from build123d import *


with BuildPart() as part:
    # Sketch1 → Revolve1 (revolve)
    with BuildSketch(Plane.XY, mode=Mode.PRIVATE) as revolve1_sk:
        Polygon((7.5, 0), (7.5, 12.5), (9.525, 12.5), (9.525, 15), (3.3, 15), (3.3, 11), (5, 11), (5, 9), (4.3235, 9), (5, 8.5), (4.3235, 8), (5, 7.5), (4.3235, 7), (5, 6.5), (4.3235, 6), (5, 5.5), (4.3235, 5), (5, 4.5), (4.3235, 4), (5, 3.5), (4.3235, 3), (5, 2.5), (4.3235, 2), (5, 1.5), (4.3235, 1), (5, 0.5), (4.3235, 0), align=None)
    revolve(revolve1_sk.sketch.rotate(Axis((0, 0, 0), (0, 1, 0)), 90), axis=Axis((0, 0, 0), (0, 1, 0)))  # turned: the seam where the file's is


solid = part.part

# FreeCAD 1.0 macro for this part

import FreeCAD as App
import Part
import Sketcher

V = App.Vector


def add_polygon(sketch, points):
    """Adds a closed chain of lines whose ends are joined by coincident constraints."""
    first, n = sketch.GeometryCount, len(points)
    for a, b in zip(points, points[1:] + points[:1]):
        sketch.addGeometry(Part.LineSegment(App.Vector(*a, 0), App.Vector(*b, 0)), False)
    for i in range(n):
        sketch.addConstraint(Sketcher.Constraint("Coincident", first + i, 2, first + (i + 1) % n, 1))

doc = App.newDocument("Part")
params = doc.addObject("Spreadsheet::Sheet", "Params")
for row, (alias, value) in enumerate([
    ("sketch1_height", "4 mm"),
    ("sketch1_height2", "2 mm"),
    ("sketch1_width", "1.7 mm"),
    ("sketch1_height3", "12.5 mm"),
    ("sketch1_height4", "2.5 mm"),
    ("revolution_angle", "360 deg"),
], start=1):
    params.set(f"A{row}", alias)
    params.set(f"B{row}", "=" + value)
    params.setAlias(f"B{row}", alias)

body = doc.addObject("PartDesign::Body", "Body")

# Sketch on XY plane
sketch1 = body.newObject("Sketcher::SketchObject", "Sketch")
sketch1.AttachmentSupport = (doc.getObject("XY_Plane"), [""])
sketch1.MapMode = "FlatFace"
add_polygon(sketch1, [(7.5, 0), (7.5, 12.5), (9.5, 12.5), (9.5, 15), (3.3, 15), (3.3, 11), (5, 11), (5, 9), (4.3, 9), (5, 8.5), (4.3, 8), (5, 7.5), (4.3, 7), (5, 6.5), (4.3, 6), (5, 5.5), (4.3, 5), (5, 4.5), (4.3, 4), (5, 3.5), (4.3, 3), (5, 2.5), (4.3, 2), (5, 1.5), (4.3, 1), (5, 0.5), (4.3, 0)])  # lines 0-26
sketch1.addConstraint([
    Sketcher.Constraint("Vertical", 0),
    Sketcher.Constraint("Horizontal", 1),
    Sketcher.Constraint("Vertical", 2),
    Sketcher.Constraint("Horizontal", 3),
    Sketcher.Constraint("Vertical", 4),
    Sketcher.Constraint("Horizontal", 5),
    Sketcher.Constraint("Vertical", 6),
    Sketcher.Constraint("Horizontal", 7),
    Sketcher.Constraint("Horizontal", 26),
    Sketcher.Constraint("PointOnObject", 25, 2, -1),
    Sketcher.Constraint("Parallel", 8, 10),
    Sketcher.Constraint("Parallel", 9, 11),
    Sketcher.Constraint("Parallel", 10, 12),
    Sketcher.Constraint("Parallel", 11, 13),
    Sketcher.Constraint("Parallel", 12, 14),
    Sketcher.Constraint("Parallel", 13, 15),
    Sketcher.Constraint("Parallel", 14, 16),
    Sketcher.Constraint("Parallel", 15, 17),
    Sketcher.Constraint("Parallel", 16, 18),
    Sketcher.Constraint("Parallel", 17, 19),
    Sketcher.Constraint("Parallel", 18, 20),
    Sketcher.Constraint("Parallel", 19, 21),
    Sketcher.Constraint("Parallel", 20, 22),
    Sketcher.Constraint("Parallel", 21, 23),
    Sketcher.Constraint("Parallel", 22, 24),
    Sketcher.Constraint("Parallel", 23, 25),
    Sketcher.Constraint("Vertical", 6, 2, 8, 2),
    Sketcher.Constraint("Vertical", 7, 2, 9, 2),
    Sketcher.Constraint("Vertical", 8, 2, 10, 2),
    Sketcher.Constraint("Vertical", 9, 2, 11, 2),
    Sketcher.Constraint("Vertical", 10, 2, 12, 2),
    Sketcher.Constraint("Vertical", 11, 2, 13, 2),
    Sketcher.Constraint("Vertical", 12, 2, 14, 2),
    Sketcher.Constraint("Vertical", 13, 2, 15, 2),
    Sketcher.Constraint("Vertical", 14, 2, 16, 2),
    Sketcher.Constraint("Vertical", 15, 2, 17, 2),
    Sketcher.Constraint("Vertical", 16, 2, 18, 2),
    Sketcher.Constraint("Vertical", 17, 2, 19, 2),
    Sketcher.Constraint("Vertical", 18, 2, 20, 2),
    Sketcher.Constraint("Vertical", 19, 2, 21, 2),
    Sketcher.Constraint("Vertical", 20, 2, 22, 2),
    Sketcher.Constraint("Vertical", 21, 2, 23, 2),
    Sketcher.Constraint("Vertical", 22, 2, 24, 2),
    Sketcher.Constraint("Vertical", 23, 2, 25, 2),
    Sketcher.Constraint("Equal", 8, 9),
    Sketcher.Constraint("DistanceY", 4, 2, 4, 1, 4.0),
    Sketcher.Constraint("DistanceY", 6, 2, 6, 1, 2.0),
    Sketcher.Constraint("DistanceX", 5, 1, 5, 2, 1.7),
    Sketcher.Constraint("DistanceY", 0, 1, 0, 2, 12.5),
    Sketcher.Constraint("DistanceY", 2, 1, 2, 2, 2.5),
    Sketcher.Constraint("DistanceX", -1, 1, 5, 2, 5.0),
    Sketcher.Constraint("DistanceX", -1, 1, 0, 2, 7.5),
    Sketcher.Constraint("DistanceX", 1, 1, 1, 2, 2.025),
    Sketcher.Constraint("DistanceX", 7, 2, 7, 1, 0.6765),
])
sketch1.setExpression("Constraints[72]", "Params.sketch1_height")
sketch1.setExpression("Constraints[73]", "Params.sketch1_height2")
sketch1.setExpression("Constraints[74]", "Params.sketch1_width")
sketch1.setExpression("Constraints[75]", "Params.sketch1_height3")
sketch1.setExpression("Constraints[76]", "Params.sketch1_height4")
revolution = body.newObject("PartDesign::Revolution", "Revolution")
revolution.Profile = sketch1
revolution.ReferenceAxis = (sketch1, ["V_Axis"])
revolution.setExpression("Angle", "Params.revolution_angle")

doc.recompute()
